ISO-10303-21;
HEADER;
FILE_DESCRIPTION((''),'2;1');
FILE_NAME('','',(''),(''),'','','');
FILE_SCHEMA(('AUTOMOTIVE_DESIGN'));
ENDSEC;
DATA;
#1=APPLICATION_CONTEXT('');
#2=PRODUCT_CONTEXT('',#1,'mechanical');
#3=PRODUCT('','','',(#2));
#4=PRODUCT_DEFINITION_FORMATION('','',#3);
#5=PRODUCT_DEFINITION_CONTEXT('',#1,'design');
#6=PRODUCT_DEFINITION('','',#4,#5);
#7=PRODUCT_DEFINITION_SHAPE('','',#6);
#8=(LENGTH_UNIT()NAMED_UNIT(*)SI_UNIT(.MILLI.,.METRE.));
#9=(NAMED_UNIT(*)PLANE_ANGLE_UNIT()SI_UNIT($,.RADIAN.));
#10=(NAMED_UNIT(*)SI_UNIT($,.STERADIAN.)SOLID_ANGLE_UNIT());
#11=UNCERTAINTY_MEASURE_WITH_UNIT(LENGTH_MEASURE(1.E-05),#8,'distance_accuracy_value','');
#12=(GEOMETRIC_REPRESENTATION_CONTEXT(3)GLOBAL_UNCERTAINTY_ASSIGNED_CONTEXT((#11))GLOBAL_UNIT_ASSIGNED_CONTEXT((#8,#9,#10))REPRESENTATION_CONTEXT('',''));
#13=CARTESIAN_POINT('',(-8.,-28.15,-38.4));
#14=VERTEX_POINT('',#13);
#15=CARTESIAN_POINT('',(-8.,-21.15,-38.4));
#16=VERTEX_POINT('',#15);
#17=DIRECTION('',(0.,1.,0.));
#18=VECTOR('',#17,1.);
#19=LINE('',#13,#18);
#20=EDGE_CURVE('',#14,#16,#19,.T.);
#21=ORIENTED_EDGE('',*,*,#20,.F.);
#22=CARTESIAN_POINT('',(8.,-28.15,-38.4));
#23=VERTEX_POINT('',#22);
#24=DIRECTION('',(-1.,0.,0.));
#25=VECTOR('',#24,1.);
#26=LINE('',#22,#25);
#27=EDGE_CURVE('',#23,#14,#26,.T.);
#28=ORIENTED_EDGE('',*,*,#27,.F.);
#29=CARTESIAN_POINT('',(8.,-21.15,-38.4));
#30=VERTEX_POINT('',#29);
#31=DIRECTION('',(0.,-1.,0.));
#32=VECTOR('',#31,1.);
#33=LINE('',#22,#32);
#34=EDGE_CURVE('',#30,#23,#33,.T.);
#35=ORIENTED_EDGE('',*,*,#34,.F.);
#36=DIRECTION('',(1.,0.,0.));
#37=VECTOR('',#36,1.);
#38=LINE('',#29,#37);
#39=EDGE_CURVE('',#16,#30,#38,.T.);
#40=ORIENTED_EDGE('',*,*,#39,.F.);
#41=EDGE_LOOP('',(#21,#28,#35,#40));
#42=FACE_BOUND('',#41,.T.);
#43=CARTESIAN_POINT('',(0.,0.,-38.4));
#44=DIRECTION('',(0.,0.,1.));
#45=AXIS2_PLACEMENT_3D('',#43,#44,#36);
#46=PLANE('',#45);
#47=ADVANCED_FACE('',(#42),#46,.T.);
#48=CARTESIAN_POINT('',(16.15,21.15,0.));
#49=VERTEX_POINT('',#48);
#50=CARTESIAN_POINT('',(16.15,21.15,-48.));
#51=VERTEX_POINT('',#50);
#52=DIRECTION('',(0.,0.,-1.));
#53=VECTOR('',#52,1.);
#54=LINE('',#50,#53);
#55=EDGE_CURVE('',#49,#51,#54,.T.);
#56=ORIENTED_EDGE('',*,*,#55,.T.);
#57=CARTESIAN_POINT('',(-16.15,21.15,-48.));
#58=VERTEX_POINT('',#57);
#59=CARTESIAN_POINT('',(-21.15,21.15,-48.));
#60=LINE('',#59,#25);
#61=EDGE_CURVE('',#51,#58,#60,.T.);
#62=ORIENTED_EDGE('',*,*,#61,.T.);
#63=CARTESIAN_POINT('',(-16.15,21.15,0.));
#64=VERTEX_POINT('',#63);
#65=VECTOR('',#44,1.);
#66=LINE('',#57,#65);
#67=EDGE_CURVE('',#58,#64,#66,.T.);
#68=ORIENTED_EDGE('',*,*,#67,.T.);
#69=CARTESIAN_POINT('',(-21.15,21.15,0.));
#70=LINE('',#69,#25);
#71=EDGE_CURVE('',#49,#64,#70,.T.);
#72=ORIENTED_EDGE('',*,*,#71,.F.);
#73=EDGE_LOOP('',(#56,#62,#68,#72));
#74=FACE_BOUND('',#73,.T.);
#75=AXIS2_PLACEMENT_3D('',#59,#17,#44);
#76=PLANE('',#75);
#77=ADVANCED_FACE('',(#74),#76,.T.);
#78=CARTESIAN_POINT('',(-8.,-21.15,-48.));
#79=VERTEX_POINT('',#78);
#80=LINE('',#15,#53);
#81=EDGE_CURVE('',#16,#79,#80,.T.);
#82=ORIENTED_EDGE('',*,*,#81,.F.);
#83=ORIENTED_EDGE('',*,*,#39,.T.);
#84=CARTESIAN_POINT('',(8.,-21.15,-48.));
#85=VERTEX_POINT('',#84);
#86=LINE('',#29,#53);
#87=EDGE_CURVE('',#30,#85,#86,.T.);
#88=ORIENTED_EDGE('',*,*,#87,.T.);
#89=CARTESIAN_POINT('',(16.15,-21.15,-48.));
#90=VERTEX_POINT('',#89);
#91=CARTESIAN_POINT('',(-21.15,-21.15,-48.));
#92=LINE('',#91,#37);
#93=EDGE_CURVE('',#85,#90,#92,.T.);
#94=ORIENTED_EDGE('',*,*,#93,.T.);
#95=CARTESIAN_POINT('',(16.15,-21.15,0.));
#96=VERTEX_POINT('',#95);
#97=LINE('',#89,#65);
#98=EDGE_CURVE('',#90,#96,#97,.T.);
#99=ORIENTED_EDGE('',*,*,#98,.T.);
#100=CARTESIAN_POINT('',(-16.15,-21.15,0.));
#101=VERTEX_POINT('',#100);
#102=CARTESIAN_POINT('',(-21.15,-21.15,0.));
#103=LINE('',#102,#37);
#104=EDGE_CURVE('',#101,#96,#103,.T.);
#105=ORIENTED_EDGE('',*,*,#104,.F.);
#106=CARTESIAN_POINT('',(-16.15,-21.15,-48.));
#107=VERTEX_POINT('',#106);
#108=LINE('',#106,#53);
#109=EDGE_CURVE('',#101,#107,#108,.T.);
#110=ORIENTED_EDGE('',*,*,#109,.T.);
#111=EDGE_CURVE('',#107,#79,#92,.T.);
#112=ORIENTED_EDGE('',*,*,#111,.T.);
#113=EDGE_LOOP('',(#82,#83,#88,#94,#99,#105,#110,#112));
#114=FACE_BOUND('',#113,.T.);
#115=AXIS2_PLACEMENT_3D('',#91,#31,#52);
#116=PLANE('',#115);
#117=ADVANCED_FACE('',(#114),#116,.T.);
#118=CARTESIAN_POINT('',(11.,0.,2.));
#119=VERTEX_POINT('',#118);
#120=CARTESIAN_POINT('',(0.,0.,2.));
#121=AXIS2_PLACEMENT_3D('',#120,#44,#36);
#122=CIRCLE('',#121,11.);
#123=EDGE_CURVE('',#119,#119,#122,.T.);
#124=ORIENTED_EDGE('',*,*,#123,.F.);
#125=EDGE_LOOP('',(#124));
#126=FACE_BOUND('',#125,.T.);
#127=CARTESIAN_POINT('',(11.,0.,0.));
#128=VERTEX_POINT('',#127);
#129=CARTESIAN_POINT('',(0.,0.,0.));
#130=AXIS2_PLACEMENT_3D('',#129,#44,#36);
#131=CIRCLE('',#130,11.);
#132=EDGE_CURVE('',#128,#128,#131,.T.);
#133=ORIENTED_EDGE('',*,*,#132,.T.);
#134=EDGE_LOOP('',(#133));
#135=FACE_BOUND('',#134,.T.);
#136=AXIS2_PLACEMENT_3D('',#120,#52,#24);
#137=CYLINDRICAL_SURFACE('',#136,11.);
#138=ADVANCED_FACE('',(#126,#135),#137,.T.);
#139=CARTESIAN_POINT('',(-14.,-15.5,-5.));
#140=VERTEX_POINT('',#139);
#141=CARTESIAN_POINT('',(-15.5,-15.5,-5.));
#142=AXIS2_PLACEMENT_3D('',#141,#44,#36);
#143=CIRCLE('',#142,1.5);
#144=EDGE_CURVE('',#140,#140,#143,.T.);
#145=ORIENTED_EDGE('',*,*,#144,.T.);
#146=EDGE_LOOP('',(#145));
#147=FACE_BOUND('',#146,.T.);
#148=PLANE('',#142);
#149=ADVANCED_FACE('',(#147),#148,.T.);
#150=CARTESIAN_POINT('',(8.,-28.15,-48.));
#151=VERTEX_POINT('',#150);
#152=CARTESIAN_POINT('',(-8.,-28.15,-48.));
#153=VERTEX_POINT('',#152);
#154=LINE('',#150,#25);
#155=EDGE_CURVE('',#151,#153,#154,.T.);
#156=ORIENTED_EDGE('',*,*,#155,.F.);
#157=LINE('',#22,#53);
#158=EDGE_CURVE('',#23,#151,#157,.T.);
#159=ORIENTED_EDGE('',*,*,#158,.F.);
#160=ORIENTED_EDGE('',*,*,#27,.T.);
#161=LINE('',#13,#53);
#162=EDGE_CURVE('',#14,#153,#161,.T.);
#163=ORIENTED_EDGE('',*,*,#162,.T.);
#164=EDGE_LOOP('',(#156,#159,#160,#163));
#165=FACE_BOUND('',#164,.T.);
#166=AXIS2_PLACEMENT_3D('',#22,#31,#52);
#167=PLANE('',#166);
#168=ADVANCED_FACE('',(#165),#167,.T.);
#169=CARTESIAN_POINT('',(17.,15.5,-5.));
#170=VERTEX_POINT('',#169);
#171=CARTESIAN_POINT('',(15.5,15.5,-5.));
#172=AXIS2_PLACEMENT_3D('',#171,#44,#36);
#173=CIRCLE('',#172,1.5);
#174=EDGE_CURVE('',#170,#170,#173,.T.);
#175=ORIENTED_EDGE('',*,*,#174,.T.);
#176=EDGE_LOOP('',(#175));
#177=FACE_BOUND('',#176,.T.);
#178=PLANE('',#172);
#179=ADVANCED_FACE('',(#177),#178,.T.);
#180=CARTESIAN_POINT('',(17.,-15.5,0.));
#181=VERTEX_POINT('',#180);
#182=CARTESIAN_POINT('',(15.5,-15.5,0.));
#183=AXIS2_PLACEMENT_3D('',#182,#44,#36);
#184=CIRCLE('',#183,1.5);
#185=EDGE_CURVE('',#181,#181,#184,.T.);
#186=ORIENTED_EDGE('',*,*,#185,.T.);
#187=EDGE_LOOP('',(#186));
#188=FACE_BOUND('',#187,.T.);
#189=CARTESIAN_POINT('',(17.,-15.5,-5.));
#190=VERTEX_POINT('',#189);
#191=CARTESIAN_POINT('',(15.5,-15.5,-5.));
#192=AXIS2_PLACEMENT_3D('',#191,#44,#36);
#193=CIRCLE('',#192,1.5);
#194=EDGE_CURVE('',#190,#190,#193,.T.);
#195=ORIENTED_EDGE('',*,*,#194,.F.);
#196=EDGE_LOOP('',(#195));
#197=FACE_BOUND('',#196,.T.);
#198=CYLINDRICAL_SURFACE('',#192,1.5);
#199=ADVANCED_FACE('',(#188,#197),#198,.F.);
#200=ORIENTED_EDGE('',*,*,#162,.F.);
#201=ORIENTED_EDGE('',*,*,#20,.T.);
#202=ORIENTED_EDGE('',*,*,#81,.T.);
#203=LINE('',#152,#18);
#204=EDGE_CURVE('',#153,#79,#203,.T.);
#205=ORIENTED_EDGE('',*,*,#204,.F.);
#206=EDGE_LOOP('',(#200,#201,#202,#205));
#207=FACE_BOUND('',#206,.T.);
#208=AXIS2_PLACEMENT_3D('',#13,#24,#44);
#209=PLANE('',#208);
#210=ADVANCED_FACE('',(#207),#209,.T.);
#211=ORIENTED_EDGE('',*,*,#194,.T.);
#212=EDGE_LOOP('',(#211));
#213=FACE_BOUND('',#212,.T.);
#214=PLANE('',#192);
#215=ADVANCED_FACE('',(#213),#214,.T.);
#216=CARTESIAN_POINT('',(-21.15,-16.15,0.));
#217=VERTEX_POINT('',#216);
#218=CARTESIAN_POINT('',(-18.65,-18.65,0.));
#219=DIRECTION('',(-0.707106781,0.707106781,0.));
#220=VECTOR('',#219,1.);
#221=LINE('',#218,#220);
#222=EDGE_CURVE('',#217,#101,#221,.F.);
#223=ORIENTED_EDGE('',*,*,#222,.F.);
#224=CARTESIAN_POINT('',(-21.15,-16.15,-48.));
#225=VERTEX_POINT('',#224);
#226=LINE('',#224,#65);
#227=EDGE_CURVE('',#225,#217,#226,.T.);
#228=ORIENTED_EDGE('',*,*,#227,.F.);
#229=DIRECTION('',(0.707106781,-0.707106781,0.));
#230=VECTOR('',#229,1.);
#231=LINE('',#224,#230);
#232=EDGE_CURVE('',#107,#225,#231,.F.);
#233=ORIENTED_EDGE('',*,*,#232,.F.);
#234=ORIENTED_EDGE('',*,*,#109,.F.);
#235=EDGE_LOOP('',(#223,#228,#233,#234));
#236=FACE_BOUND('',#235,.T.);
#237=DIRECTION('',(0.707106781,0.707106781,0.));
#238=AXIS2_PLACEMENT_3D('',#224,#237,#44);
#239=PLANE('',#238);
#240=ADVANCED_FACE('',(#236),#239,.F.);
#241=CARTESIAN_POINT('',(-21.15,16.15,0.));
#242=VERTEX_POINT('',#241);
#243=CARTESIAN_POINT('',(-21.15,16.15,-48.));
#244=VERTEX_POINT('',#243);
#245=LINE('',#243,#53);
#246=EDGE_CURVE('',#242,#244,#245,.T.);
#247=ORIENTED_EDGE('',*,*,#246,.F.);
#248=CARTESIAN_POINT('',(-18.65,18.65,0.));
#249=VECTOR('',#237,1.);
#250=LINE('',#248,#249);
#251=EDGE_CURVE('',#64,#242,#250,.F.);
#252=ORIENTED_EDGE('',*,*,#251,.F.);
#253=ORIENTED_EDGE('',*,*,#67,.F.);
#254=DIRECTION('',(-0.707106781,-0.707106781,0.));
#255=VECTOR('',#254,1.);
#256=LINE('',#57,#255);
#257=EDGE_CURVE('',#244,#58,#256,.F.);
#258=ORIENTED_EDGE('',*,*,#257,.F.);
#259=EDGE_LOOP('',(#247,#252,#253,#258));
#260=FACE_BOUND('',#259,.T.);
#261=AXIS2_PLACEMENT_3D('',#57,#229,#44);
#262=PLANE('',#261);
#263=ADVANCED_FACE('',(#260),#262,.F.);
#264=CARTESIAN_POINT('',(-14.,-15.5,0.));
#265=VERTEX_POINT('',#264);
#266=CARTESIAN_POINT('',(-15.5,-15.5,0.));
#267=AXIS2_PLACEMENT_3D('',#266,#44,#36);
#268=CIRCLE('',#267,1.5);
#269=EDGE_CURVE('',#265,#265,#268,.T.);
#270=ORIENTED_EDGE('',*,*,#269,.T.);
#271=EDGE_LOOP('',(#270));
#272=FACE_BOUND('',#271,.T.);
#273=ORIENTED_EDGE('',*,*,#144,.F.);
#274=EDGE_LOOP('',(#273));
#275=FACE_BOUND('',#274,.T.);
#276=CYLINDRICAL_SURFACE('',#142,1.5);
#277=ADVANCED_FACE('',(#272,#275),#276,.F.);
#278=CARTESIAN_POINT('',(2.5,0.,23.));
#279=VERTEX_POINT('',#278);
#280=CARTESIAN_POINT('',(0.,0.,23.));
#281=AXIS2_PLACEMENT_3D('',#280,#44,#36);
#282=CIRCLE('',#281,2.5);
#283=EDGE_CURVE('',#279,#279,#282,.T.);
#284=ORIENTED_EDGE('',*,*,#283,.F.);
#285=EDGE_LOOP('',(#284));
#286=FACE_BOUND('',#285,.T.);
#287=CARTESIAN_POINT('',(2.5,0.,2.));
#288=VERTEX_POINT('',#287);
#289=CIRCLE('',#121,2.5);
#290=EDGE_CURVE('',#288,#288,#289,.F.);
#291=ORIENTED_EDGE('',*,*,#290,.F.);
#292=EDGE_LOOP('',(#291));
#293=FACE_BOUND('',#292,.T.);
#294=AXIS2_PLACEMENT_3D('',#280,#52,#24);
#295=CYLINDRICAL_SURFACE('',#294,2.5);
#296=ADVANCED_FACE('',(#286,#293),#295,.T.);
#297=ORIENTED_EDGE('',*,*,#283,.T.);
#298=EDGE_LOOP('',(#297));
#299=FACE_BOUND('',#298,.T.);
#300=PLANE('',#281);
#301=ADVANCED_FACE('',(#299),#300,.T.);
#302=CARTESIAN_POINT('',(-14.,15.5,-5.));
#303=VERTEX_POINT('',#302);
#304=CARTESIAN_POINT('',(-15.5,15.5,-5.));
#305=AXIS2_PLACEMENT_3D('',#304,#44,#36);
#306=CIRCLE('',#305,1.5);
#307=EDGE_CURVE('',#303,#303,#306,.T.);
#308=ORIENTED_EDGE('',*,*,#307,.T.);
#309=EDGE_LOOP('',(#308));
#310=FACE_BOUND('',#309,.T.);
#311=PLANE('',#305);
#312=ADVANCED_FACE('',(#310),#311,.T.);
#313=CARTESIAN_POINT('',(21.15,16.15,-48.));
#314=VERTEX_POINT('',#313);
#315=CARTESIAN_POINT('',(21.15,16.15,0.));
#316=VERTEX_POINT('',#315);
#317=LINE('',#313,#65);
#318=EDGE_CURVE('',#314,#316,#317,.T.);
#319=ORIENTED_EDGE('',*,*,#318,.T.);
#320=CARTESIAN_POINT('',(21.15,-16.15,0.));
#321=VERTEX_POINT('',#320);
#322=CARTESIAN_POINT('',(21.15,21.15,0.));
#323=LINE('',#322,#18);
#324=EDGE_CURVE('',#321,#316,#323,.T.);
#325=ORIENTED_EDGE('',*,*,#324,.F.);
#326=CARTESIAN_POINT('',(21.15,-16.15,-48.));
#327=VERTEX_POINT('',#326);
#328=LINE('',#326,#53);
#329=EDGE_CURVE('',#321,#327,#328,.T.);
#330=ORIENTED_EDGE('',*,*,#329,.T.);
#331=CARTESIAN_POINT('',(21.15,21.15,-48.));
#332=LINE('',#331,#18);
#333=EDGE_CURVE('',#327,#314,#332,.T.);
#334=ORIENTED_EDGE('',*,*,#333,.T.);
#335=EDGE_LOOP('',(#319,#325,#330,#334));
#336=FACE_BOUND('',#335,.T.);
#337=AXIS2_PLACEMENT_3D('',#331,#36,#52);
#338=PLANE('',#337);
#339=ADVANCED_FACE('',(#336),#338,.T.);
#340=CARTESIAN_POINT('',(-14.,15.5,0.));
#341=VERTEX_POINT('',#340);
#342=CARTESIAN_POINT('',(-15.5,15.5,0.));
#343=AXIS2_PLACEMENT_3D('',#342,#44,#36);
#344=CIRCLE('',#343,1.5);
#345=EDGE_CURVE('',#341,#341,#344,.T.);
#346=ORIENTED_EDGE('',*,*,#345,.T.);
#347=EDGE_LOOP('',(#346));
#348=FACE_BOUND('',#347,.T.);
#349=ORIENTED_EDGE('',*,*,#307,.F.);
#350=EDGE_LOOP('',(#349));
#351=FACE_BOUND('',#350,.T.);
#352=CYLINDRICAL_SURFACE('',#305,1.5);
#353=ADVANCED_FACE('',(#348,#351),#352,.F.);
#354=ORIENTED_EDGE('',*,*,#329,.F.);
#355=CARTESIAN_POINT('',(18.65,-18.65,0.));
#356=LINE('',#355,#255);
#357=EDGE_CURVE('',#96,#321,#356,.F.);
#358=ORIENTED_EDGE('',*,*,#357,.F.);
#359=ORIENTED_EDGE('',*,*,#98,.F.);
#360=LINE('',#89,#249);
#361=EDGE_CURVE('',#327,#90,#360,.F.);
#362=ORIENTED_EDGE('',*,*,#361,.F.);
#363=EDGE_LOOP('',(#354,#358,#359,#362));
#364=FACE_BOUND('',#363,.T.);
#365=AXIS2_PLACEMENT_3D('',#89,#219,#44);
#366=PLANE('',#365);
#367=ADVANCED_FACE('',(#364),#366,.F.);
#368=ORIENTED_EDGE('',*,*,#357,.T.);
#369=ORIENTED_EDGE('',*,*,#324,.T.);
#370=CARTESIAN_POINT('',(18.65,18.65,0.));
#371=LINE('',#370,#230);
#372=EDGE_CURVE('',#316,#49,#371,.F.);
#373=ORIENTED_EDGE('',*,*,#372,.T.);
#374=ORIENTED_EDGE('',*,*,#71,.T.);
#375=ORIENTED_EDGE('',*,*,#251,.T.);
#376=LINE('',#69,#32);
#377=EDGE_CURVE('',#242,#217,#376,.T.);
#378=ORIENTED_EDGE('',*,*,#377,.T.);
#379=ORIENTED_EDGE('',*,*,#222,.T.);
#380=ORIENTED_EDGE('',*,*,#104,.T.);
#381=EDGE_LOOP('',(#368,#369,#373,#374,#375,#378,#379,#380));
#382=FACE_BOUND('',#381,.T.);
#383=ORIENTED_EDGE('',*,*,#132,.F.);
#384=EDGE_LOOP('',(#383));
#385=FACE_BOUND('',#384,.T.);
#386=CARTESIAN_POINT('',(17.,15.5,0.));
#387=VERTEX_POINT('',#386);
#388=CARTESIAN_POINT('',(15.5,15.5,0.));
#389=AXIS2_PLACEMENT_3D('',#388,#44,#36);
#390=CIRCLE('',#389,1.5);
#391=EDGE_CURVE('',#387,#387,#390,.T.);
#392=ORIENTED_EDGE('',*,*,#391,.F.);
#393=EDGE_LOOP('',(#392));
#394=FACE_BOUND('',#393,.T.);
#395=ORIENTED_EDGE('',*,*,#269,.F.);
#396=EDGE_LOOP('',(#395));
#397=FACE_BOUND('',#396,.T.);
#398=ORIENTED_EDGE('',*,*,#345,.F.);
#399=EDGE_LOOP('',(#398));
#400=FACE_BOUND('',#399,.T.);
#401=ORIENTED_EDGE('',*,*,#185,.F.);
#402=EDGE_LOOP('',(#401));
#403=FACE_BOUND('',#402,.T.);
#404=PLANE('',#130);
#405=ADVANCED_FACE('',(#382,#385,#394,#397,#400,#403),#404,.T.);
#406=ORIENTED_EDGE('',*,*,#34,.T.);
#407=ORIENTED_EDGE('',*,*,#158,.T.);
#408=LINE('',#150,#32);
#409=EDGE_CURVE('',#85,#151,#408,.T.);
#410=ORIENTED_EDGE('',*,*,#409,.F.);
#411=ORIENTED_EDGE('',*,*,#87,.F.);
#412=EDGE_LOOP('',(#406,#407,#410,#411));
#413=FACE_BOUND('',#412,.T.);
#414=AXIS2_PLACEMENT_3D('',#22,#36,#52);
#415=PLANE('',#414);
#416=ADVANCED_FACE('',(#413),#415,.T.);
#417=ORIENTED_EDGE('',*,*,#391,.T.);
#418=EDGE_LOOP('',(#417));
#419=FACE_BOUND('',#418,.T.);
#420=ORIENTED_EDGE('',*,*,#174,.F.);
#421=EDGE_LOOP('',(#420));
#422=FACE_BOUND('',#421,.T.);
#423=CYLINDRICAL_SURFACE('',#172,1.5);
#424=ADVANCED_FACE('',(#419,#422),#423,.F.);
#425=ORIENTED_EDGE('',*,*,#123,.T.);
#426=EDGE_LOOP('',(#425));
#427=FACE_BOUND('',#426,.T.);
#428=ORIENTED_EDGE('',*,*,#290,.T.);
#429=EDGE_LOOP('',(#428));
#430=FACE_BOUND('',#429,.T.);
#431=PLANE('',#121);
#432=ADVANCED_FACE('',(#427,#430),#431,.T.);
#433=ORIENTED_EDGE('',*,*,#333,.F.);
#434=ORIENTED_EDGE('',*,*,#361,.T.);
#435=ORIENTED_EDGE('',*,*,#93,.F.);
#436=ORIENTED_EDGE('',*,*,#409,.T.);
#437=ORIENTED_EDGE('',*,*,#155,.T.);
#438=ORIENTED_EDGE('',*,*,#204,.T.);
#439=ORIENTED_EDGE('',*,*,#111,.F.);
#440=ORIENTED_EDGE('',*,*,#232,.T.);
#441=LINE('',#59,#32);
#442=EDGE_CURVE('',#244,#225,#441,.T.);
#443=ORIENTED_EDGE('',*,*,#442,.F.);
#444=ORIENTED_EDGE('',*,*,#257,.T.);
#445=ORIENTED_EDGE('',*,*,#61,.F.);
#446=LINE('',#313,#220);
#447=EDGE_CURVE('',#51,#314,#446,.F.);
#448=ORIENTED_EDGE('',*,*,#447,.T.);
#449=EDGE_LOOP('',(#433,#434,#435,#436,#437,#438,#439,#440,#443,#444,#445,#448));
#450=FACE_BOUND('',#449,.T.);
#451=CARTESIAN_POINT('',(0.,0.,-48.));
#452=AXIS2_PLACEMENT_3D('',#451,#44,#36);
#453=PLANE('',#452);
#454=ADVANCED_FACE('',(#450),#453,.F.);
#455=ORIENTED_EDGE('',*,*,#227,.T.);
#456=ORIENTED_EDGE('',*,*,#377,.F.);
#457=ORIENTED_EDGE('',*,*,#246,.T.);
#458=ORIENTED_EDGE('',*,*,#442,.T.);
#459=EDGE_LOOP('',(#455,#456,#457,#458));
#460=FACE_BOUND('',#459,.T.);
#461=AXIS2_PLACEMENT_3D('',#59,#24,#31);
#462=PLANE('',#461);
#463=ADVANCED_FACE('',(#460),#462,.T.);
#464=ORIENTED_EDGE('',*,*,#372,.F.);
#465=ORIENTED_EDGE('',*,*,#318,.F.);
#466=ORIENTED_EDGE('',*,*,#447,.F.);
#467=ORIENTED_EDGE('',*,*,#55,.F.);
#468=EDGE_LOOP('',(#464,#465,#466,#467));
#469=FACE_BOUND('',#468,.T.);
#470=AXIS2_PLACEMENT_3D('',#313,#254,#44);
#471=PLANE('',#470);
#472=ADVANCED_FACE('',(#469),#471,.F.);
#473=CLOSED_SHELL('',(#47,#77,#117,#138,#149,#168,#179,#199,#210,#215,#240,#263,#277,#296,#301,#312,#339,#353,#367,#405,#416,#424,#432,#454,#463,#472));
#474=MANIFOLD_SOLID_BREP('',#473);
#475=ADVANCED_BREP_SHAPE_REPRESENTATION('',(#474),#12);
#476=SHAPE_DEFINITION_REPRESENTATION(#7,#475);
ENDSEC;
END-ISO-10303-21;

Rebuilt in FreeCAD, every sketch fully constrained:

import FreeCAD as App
import Part
import Sketcher


def edges_at(feature, points):
    """Names of the edges that pass closest to the given points."""
    edges = feature.Shape.Edges
    near = lambda p: min(range(len(edges)), key=lambda i: edges[i].distToShape(Part.Vertex(*p))[0])
    return sorted({f"Edge{near(p) + 1}" for p in points})


def add_polygon(sketch, points):
    """Adds a closed chain of lines whose ends are joined by coincident constraints."""
    first, n = sketch.GeometryCount, len(points)
    for a, b in zip(points, points[1:] + points[:1]):
        sketch.addGeometry(Part.LineSegment(App.Vector(*a, 0), App.Vector(*b, 0)), False)
    for i in range(n):
        sketch.addConstraint(Sketcher.Constraint("Coincident", first + i, 2, first + (i + 1) % n, 1))

doc = App.newDocument("Part")
body = doc.addObject("PartDesign::Body", "Body")

# Sketch on XY plane
sketch1 = body.newObject("Sketcher::SketchObject", "Sketch")
sketch1.AttachmentSupport = (doc.getObject("XY_Plane"), [""])
sketch1.MapMode = "FlatFace"
add_polygon(sketch1, [(-21.15, 21.15), (-21.15, -21.15), (21.15, -21.15), (21.15, 21.15)])  # lines 0-3
sketch1.addConstraint([
    Sketcher.Constraint("Vertical", 0),
    Sketcher.Constraint("Horizontal", 1),
    Sketcher.Constraint("Vertical", 2),
    Sketcher.Constraint("Horizontal", 3),
    Sketcher.Constraint("Symmetric", 0, 2, 2, 2, -1, 1),
    Sketcher.Constraint("Equal", 3, 0),
    Sketcher.Constraint("DistanceX", 1, 1, 1, 2, 42.3),
])
pad1 = body.newObject("PartDesign::Pad", "Pad")
pad1.Profile = sketch1
pad1.Length = 48
pad1.Reversed = True
doc.recompute()

chamfer = body.newObject("PartDesign::Chamfer", "Chamfer")
chamfer.Base = (pad1, edges_at(pad1, [
    (21.15, -21.15, -24),
    (-21.15, -21.15, -24),
    (-21.15, 21.15, -24),
    (21.15, 21.15, -24),
]))
chamfer.Size = 5

# Sketch on XY plane
sketch2 = body.newObject("Sketcher::SketchObject", "Sketch001")
sketch2.AttachmentSupport = (doc.getObject("XY_Plane"), [""])
sketch2.MapMode = "FlatFace"
sketch2.addGeometry([
    Part.Circle(App.Vector(15.5, -15.5, 0), App.Vector(0, 0, 1), 1.5),
    Part.Circle(App.Vector(-15.5, -15.5, 0), App.Vector(0, 0, 1), 1.5),
    Part.Circle(App.Vector(-15.5, 15.5, 0), App.Vector(0, 0, 1), 1.5),
    Part.Circle(App.Vector(15.5, 15.5, 0), App.Vector(0, 0, 1), 1.5),
], False)
sketch2.addConstraint([
    Sketcher.Constraint("Equal", 0, 1),
    Sketcher.Constraint("Equal", 1, 2),
    Sketcher.Constraint("Equal", 2, 3),
    Sketcher.Constraint("Symmetric", 0, 3, 2, 3, -1, 1),
    Sketcher.Constraint("Symmetric", 1, 3, 3, 3, -1, 1),
    Sketcher.Constraint("Symmetric", 0, 3, 1, 3, -2),
    Sketcher.Constraint("Diameter", 0, 3.0),
    Sketcher.Constraint("DistanceX", 1, 3, 0, 3, 31.0),
    Sketcher.Constraint("DistanceY", 1, 3, 2, 3, 31.0),
])
pocket1 = body.newObject("PartDesign::Pocket", "Pocket")
pocket1.Profile = sketch2
pocket1.Length = 5

# Sketch on XY plane
sketch3 = body.newObject("Sketcher::SketchObject", "Sketch002")
sketch3.AttachmentSupport = (doc.getObject("XY_Plane"), [""])
sketch3.MapMode = "FlatFace"
sketch3.addGeometry(Part.Circle(App.Vector(0, 0, 0), App.Vector(0, 0, 1), 11), False)
sketch3.addConstraint([
    Sketcher.Constraint("Coincident", 0, 3, -1, 1),
    Sketcher.Constraint("Diameter", 0, 22.0),
])
pad2 = body.newObject("PartDesign::Pad", "Pad001")
pad2.Profile = sketch3
pad2.Length = 2

# Sketch on XY plane
sketch4 = body.newObject("Sketcher::SketchObject", "Sketch003")
sketch4.AttachmentSupport = (doc.getObject("XY_Plane"), [""])
sketch4.MapMode = "FlatFace"
sketch4.addGeometry(Part.Circle(App.Vector(0, 0, 0), App.Vector(0, 0, 1), 2.5), False)
sketch4.addConstraint([
    Sketcher.Constraint("Coincident", 0, 3, -1, 1),
    Sketcher.Constraint("Diameter", 0, 5.0),
])
pad3 = body.newObject("PartDesign::Pad", "Pad002")
pad3.Profile = sketch4
pad3.Length = 23

# Sketch on XY plane
sketch5 = body.newObject("Sketcher::SketchObject", "Sketch004")
sketch5.AttachmentSupport = (doc.getObject("XY_Plane"), [""])
sketch5.MapMode = "FlatFace"
sketch5.AttachmentOffset = App.Placement(App.Vector(0, 0, -48), App.Rotation())
add_polygon(sketch5, [(8, -21.15), (8, -28.15), (-8, -28.15), (-8, -21.15)])  # lines 0-3
sketch5.addConstraint([
    Sketcher.Constraint("Vertical", 0),
    Sketcher.Constraint("Horizontal", 1),
    Sketcher.Constraint("Vertical", 2),
    Sketcher.Constraint("Horizontal", 3),
    Sketcher.Constraint("DistanceX", 1, 2, 1, 1, 16.0),
    Sketcher.Constraint("DistanceY", 0, 2, 0, 1, 7.0),
    Sketcher.Constraint("DistanceX", -1, 1, 0, 2, 8.0),
    Sketcher.Constraint("DistanceY", 0, 2, -1, 1, 28.15),
])
pad4 = body.newObject("PartDesign::Pad", "Pad003")
pad4.Profile = sketch5
pad4.Length = 9.6

doc.recompute()
